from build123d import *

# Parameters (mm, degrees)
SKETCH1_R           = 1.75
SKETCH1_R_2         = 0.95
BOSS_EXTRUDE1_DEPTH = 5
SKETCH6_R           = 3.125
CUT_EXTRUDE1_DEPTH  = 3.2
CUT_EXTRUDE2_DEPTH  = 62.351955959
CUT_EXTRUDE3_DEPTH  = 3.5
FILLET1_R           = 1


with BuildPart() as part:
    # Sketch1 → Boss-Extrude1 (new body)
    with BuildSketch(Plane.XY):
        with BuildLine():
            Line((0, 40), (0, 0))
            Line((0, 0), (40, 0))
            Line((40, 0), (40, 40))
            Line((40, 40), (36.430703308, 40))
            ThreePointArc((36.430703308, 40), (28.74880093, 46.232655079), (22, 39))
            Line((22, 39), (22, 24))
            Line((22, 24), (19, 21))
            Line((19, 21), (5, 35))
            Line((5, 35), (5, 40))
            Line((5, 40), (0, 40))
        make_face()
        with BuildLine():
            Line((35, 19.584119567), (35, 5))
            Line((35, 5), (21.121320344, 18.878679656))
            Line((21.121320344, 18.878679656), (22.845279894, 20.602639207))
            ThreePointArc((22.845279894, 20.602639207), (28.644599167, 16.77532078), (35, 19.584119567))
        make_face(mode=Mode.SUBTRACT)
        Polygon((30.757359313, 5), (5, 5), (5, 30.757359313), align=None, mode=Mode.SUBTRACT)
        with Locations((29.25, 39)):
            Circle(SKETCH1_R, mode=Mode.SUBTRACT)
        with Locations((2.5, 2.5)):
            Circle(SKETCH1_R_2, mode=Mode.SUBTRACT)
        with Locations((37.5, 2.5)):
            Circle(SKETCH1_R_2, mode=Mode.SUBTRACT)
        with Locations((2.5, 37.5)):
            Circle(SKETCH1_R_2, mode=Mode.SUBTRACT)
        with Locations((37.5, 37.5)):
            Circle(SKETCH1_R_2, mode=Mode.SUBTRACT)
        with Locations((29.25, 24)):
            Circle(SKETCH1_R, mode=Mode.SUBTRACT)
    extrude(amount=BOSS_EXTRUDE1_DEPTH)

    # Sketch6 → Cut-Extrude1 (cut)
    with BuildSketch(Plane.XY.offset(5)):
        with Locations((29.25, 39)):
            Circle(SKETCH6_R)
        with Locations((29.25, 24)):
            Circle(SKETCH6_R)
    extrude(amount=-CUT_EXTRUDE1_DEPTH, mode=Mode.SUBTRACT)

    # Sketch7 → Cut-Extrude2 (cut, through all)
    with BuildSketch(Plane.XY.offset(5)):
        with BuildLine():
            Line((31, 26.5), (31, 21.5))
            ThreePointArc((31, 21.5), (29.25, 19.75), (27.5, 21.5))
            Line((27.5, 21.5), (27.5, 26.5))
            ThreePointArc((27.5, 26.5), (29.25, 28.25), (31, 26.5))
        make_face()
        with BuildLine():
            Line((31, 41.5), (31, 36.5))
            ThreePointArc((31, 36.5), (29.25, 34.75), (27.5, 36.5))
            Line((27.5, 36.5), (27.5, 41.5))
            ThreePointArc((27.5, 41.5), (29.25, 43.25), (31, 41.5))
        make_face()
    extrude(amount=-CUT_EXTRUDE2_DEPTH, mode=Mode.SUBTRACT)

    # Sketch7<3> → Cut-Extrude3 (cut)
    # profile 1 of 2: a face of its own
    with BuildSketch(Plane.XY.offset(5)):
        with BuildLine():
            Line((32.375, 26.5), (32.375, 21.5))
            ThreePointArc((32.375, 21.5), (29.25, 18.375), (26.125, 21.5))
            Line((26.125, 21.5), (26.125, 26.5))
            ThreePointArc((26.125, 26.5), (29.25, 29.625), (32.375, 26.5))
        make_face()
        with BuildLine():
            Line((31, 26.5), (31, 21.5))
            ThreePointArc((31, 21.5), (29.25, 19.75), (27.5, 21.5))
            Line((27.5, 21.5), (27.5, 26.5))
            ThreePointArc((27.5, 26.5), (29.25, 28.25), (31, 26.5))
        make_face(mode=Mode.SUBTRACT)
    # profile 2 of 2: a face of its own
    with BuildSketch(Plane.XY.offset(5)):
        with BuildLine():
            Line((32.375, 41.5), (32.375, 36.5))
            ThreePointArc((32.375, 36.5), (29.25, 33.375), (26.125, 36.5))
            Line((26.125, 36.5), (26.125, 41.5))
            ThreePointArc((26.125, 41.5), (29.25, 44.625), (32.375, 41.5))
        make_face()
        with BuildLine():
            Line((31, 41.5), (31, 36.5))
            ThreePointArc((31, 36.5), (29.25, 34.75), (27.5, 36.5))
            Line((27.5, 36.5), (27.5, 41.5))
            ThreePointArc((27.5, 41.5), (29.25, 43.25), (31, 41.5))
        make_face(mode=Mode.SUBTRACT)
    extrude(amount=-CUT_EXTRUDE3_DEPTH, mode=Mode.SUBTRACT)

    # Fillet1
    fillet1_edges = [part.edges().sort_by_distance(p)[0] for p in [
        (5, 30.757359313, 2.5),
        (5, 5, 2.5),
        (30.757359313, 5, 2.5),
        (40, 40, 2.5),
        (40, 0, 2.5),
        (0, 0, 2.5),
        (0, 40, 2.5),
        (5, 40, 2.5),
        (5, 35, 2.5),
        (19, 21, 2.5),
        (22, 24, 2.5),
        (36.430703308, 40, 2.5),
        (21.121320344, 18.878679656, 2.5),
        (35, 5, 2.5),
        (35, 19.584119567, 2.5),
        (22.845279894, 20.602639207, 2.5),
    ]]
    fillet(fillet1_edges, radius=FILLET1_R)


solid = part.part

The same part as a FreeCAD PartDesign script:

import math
import FreeCAD as App
import Part
import Sketcher
Q = App.Units.Quantity


def edges_at(feature, points):
    """Names of the edges that pass closest to the given points."""
    edges = feature.Shape.Edges
    near = lambda p: min(range(len(edges)), key=lambda i: edges[i].distToShape(Part.Vertex(*p))[0])
    return sorted({f"Edge{near(p) + 1}" for p in points})

doc = App.newDocument("Part")
params = doc.addObject("Spreadsheet::Sheet", "Params")
for row, (alias, value) in enumerate([
    ("sketch1_diameter", "1.9 mm"),
    ("sketch1_diameter2", "3.5 mm"),
    ("sketch1_width", "40 mm"),
    ("sketch1_width2", "5 mm"),
    ("sketch1_height", "15 mm"),
    ("pad1_length", "5 mm"),
    ("sketch2_diameter", "6.25 mm"),
    ("pocket1_length", "3.2 mm"),
    ("sketch3_height", "5 mm"),
    ("sketch3_radius", "1.75 mm"),
    ("sketch4_height", "5 mm"),
    ("sketch4_radius", "1.75 mm"),
    ("pocket3_length", "3.5 mm"),
    ("fillet_radius", "1 mm"),
], start=1):
    params.set(f"A{row}", alias)
    params.set(f"B{row}", "=" + value)
    params.setAlias(f"B{row}", alias)

body = doc.addObject("PartDesign::Body", "Body")

sketch1 = body.newObject("Sketcher::SketchObject", "Sketch")
sketch1.AttachmentSupport = (doc.getObject("XY_Plane"), [""])
sketch1.MapMode = "FlatFace"
sketch1.addGeometry([
    Part.LineSegment(App.Vector(0, 40, 0), App.Vector(0, 0, 0)),
    Part.LineSegment(App.Vector(0, 0, 0), App.Vector(40, 0, 0)),
    Part.LineSegment(App.Vector(40, 0, 0), App.Vector(40, 40, 0)),
    Part.LineSegment(App.Vector(40, 40, 0), App.Vector(36.4, 40, 0)),
    Part.ArcOfCircle(Part.Circle(App.Vector(29.2, 39, 0), App.Vector(0, 0, 1), 7.2), math.radians(8), math.radians(180)),
    Part.LineSegment(App.Vector(22, 39, 0), App.Vector(22, 24, 0)),
    Part.LineSegment(App.Vector(22, 24, 0), App.Vector(19, 21, 0)),
    Part.LineSegment(App.Vector(19, 21, 0), App.Vector(5, 35, 0)),
    Part.LineSegment(App.Vector(5, 35, 0), App.Vector(5, 40, 0)),
    Part.LineSegment(App.Vector(5, 40, 0), App.Vector(0, 40, 0)),
    Part.Circle(App.Vector(2.5, 2.5, 0), App.Vector(0, 0, 1), 0.9),
    Part.LineSegment(App.Vector(5, 30.8, 0), App.Vector(30.8, 5, 0)),
    Part.LineSegment(App.Vector(30.8, 5, 0), App.Vector(5, 5, 0)),
    Part.LineSegment(App.Vector(5, 5, 0), App.Vector(5, 30.8, 0)),
    Part.Circle(App.Vector(37.5, 2.5, 0), App.Vector(0, 0, 1), 0.9),
    Part.ArcOfCircle(Part.Circle(App.Vector(29.2, 24, 0), App.Vector(0, 0, 1), 7.2), math.radians(-152), math.radians(-38)),
    Part.LineSegment(App.Vector(35, 19.6, 0), App.Vector(35, 5, 0)),
    Part.LineSegment(App.Vector(35, 5, 0), App.Vector(21.1, 18.9, 0)),
    Part.LineSegment(App.Vector(21.1, 18.9, 0), App.Vector(22.8, 20.6, 0)),
    Part.Circle(App.Vector(2.5, 37.5, 0), App.Vector(0, 0, 1), 0.9),
    Part.Circle(App.Vector(29.2, 24, 0), App.Vector(0, 0, 1), 1.8),
    Part.Circle(App.Vector(29.2, 39, 0), App.Vector(0, 0, 1), 1.8),
    Part.Circle(App.Vector(37.5, 37.5, 0), App.Vector(0, 0, 1), 0.9),
], False)
sketch1.addConstraint([
    Sketcher.Constraint("Coincident", 0, 2, 1, 1),
    Sketcher.Constraint("Coincident", 1, 2, 2, 1),
    Sketcher.Constraint("Coincident", 2, 2, 3, 1),
    Sketcher.Constraint("Coincident", 3, 2, 4, 1),
    Sketcher.Constraint("Tangent", 4, 2, 5, 1),
    Sketcher.Constraint("Coincident", 5, 2, 6, 1),
    Sketcher.Constraint("Coincident", 6, 2, 7, 1),
    Sketcher.Constraint("Coincident", 7, 2, 8, 1),
    Sketcher.Constraint("Coincident", 8, 2, 9, 1),
    Sketcher.Constraint("Coincident", 9, 2, 0, 1),
    Sketcher.Constraint("Coincident", 11, 2, 12, 1),
    Sketcher.Constraint("Coincident", 12, 2, 13, 1),
    Sketcher.Constraint("Coincident", 13, 2, 11, 1),
    Sketcher.Constraint("Coincident", 15, 2, 16, 1),
    Sketcher.Constraint("Coincident", 16, 2, 17, 1),
    Sketcher.Constraint("Coincident", 17, 2, 18, 1),
    Sketcher.Constraint("Coincident", 18, 2, 15, 1),
    Sketcher.Constraint("Vertical", 0),
    Sketcher.Constraint("Horizontal", 1),
    Sketcher.Constraint("Vertical", 2),
    Sketcher.Constraint("Horizontal", 3),
    Sketcher.Constraint("Vertical", 5),
    Sketcher.Constraint("Vertical", 8),
    Sketcher.Constraint("Horizontal", 9),
    Sketcher.Constraint("Horizontal", 12),
    Sketcher.Constraint("Vertical", 13),
    Sketcher.Constraint("Vertical", 16),
    Sketcher.Constraint("Coincident", 0, 2, -1, 1),
    Sketcher.Constraint("Coincident", 20, 3, 15, 3),
    Sketcher.Constraint("Coincident", 21, 3, 4, 3),
    Sketcher.Constraint("Equal", 10, 14),
    Sketcher.Constraint("Equal", 4, 15),
    Sketcher.Constraint("Equal", 14, 19),
    Sketcher.Constraint("Equal", 20, 21),
    Sketcher.Constraint("Equal", 19, 22),
    Sketcher.Constraint("Perpendicular", 6, 7),
    Sketcher.Constraint("Parallel", 7, 11),
    Sketcher.Constraint("Parallel", 11, 17),
    Sketcher.Constraint("Perpendicular", 17, 18),
    Sketcher.Constraint("Horizontal", 10, 3, 14, 3),
    Sketcher.Constraint("Horizontal", 19, 3, 22, 3),
    Sketcher.Constraint("Horizontal", 20, 3, 5, 2),
    Sketcher.Constraint("Horizontal", 3, 2, 8, 2),
    Sketcher.Constraint("Horizontal", 12, 2, 16, 2),
    Sketcher.Constraint("Vertical", 4, 3, 15, 3),
    Sketcher.Constraint("Vertical", 10, 3, 19, 3),
    Sketcher.Constraint("Vertical", 14, 3, 22, 3),
    Sketcher.Constraint("Vertical", 8, 2, 12, 2),
    Sketcher.Constraint("Equal", 1, 0),
    Sketcher.Constraint("Equal", 9, 8),
    Sketcher.Constraint("Equal", 12, 13),
    Sketcher.Constraint("Diameter", 10, Q("1.9 mm")),
    Sketcher.Constraint("Diameter", 20, Q("3.5 mm")),
    Sketcher.Constraint("DistanceX", 1, 1, 1, 2, Q("40 mm")),
    Sketcher.Constraint("DistanceX", 9, 2, 9, 1, Q("5 mm")),
    Sketcher.Constraint("DistanceY", 5, 2, 5, 1, Q("15 mm")),
    Sketcher.Constraint("Radius", 4, Q("7.25 mm")),
    Sketcher.Constraint("DistanceY", -1, 1, 4, 3, Q("39 mm")),
    Sketcher.Constraint("DistanceX", -1, 1, 4, 2, Q("22 mm")),
    Sketcher.Constraint("DistanceY", -1, 1, 11, 2, Q("5 mm")),
    Sketcher.Constraint("DistanceX", -1, 1, 15, 2, Q("35 mm")),
    Sketcher.Constraint("DistanceX", 10, 3, 14, 3, Q("35 mm")),
    Sketcher.Constraint("DistanceY", 10, 3, 19, 3, Q("35 mm")),
    Sketcher.Constraint("DistanceX", -1, 1, 10, 3, Q("2.5 mm")),
    Sketcher.Constraint("DistanceY", -1, 1, 10, 3, Q("2.5 mm")),
    Sketcher.Constraint("DistanceX", 12, 2, 12, 1, Q("25.757359 mm")),
    Sketcher.Constraint("DistanceX", -1, 1, 17, 2, Q("21.12132 mm")),
])
sketch1.setExpression("Constraints[51]", "Params.sketch1_diameter")
sketch1.setExpression("Constraints[52]", "Params.sketch1_diameter2")
sketch1.setExpression("Constraints[53]", "Params.sketch1_width")
sketch1.setExpression("Constraints[54]", "Params.sketch1_width2")
sketch1.setExpression("Constraints[55]", "Params.sketch1_height")
pad1 = body.newObject("PartDesign::Pad", "Pad")
pad1.Profile = sketch1
pad1.setExpression("Length", "Params.pad1_length")

sketch2 = body.newObject("Sketcher::SketchObject", "Sketch001")
sketch2.AttachmentSupport = (doc.getObject("XY_Plane"), [""])
sketch2.MapMode = "FlatFace"
sketch2.AttachmentOffset = App.Placement(App.Vector(0, 0, 5), App.Rotation())
sketch2.addGeometry([
    Part.Circle(App.Vector(29.2, 39, 0), App.Vector(0, 0, 1), 3.1),
    Part.Circle(App.Vector(29.2, 24, 0), App.Vector(0, 0, 1), 3.1),
], False)
sketch2.addConstraint([
    Sketcher.Constraint("Equal", 0, 1),
    Sketcher.Constraint("Vertical", 0, 3, 1, 3),
    Sketcher.Constraint("Diameter", 0, Q("6.25 mm")),
    Sketcher.Constraint("DistanceY", -1, 1, 0, 3, Q("39 mm")),
    Sketcher.Constraint("DistanceY", -1, 1, 1, 3, Q("24 mm")),
    Sketcher.Constraint("DistanceX", -1, 1, 0, 3, Q("29.25 mm")),
])
sketch2.setExpression("Constraints[2]", "Params.sketch2_diameter")
pocket1 = body.newObject("PartDesign::Pocket", "Pocket")
pocket1.Profile = sketch2
pocket1.setExpression("Length", "Params.pocket1_length")

sketch3 = body.newObject("Sketcher::SketchObject", "Sketch002")
sketch3.AttachmentSupport = (doc.getObject("XY_Plane"), [""])
sketch3.MapMode = "FlatFace"
sketch3.AttachmentOffset = App.Placement(App.Vector(0, 0, 5), App.Rotation())
sketch3.addGeometry([
    Part.LineSegment(App.Vector(31, 21.5, 0), App.Vector(31, 26.5, 0)),
    Part.ArcOfCircle(Part.Circle(App.Vector(29.2, 26.5, 0), App.Vector(0, 0, 1), 1.8), math.radians(0), math.radians(180)),
    Part.LineSegment(App.Vector(27.5, 26.5, 0), App.Vector(27.5, 21.5, 0)),
    Part.ArcOfCircle(Part.Circle(App.Vector(29.2, 21.5, 0), App.Vector(0, 0, 1), 1.8), math.radians(180), math.radians(360)),
    Part.LineSegment(App.Vector(31, 36.5, 0), App.Vector(31, 41.5, 0)),
    Part.ArcOfCircle(Part.Circle(App.Vector(29.2, 41.5, 0), App.Vector(0, 0, 1), 1.8), math.radians(0), math.radians(180)),
    Part.LineSegment(App.Vector(27.5, 41.5, 0), App.Vector(27.5, 36.5, 0)),
    Part.ArcOfCircle(Part.Circle(App.Vector(29.2, 36.5, 0), App.Vector(0, 0, 1), 1.8), math.radians(180), math.radians(360)),
], False)
sketch3.addConstraint([
    Sketcher.Constraint("Tangent", 0, 2, 1, 1),
    Sketcher.Constraint("Tangent", 1, 2, 2, 1),
    Sketcher.Constraint("Tangent", 2, 2, 3, 1),
    Sketcher.Constraint("Tangent", 3, 2, 0, 1),
    Sketcher.Constraint("Tangent", 4, 2, 5, 1),
    Sketcher.Constraint("Tangent", 5, 2, 6, 1),
    Sketcher.Constraint("Tangent", 6, 2, 7, 1),
    Sketcher.Constraint("Tangent", 7, 2, 4, 1),
    Sketcher.Constraint("Vertical", 0),
    Sketcher.Constraint("Vertical", 2),
    Sketcher.Constraint("Vertical", 4),
    Sketcher.Constraint("Vertical", 6),
    Sketcher.Constraint("Equal", 3, 5),
    Sketcher.Constraint("Vertical", 3, 3, 5, 3),
    Sketcher.Constraint("Equal", 2, 4),
    Sketcher.Constraint("DistanceY", 0, 1, 0, 2, Q("5 mm")),
    Sketcher.Constraint("Radius", 1, Q("1.75 mm")),
    Sketcher.Constraint("DistanceX", -1, 1, 0, 2, Q("31 mm")),
    Sketcher.Constraint("DistanceY", 1, 3, 5, 3, Q("15 mm")),
    Sketcher.Constraint("DistanceY", -1, 1, 1, 3, Q("26.5 mm")),
])
sketch3.setExpression("Constraints[15]", "Params.sketch3_height")
sketch3.setExpression("Constraints[16]", "Params.sketch3_radius")
pocket2 = body.newObject("PartDesign::Pocket", "Pocket001")
pocket2.Profile = sketch3
pocket2.Type = "ThroughAll"

sketch4 = body.newObject("Sketcher::SketchObject", "Sketch003")
sketch4.AttachmentSupport = (doc.getObject("XY_Plane"), [""])
sketch4.MapMode = "FlatFace"
sketch4.AttachmentOffset = App.Placement(App.Vector(0, 0, 5), App.Rotation())
sketch4.addGeometry([
    Part.LineSegment(App.Vector(32.4, 21.5, 0), App.Vector(32.4, 26.5, 0)),
    Part.ArcOfCircle(Part.Circle(App.Vector(29.2, 26.5, 0), App.Vector(0, 0, 1), 3.1), math.radians(0), math.radians(180)),
    Part.LineSegment(App.Vector(26.1, 26.5, 0), App.Vector(26.1, 21.5, 0)),
    Part.ArcOfCircle(Part.Circle(App.Vector(29.2, 21.5, 0), App.Vector(0, 0, 1), 3.1), math.radians(180), math.radians(360)),
    Part.LineSegment(App.Vector(31, 26.5, 0), App.Vector(31, 21.5, 0)),
    Part.ArcOfCircle(Part.Circle(App.Vector(29.2, 21.5, 0), App.Vector(0, 0, 1), 1.8), math.radians(180), math.radians(360)),
    Part.LineSegment(App.Vector(27.5, 21.5, 0), App.Vector(27.5, 26.5, 0)),
    Part.ArcOfCircle(Part.Circle(App.Vector(29.2, 26.5, 0), App.Vector(0, 0, 1), 1.8), math.radians(0), math.radians(180)),
    Part.LineSegment(App.Vector(32.4, 36.5, 0), App.Vector(32.4, 41.5, 0)),
    Part.ArcOfCircle(Part.Circle(App.Vector(29.2, 41.5, 0), App.Vector(0, 0, 1), 3.1), math.radians(0), math.radians(180)),
    Part.LineSegment(App.Vector(26.1, 41.5, 0), App.Vector(26.1, 36.5, 0)),
    Part.ArcOfCircle(Part.Circle(App.Vector(29.2, 36.5, 0), App.Vector(0, 0, 1), 3.1), math.radians(180), math.radians(360)),
    Part.LineSegment(App.Vector(31, 41.5, 0), App.Vector(31, 36.5, 0)),
    Part.ArcOfCircle(Part.Circle(App.Vector(29.2, 36.5, 0), App.Vector(0, 0, 1), 1.8), math.radians(180), math.radians(360)),
    Part.LineSegment(App.Vector(27.5, 36.5, 0), App.Vector(27.5, 41.5, 0)),
    Part.ArcOfCircle(Part.Circle(App.Vector(29.2, 41.5, 0), App.Vector(0, 0, 1), 1.8), math.radians(0), math.radians(180)),
], False)
sketch4.addConstraint([
    Sketcher.Constraint("Tangent", 0, 2, 1, 1),
    Sketcher.Constraint("Tangent", 1, 2, 2, 1),
    Sketcher.Constraint("Tangent", 2, 2, 3, 1),
    Sketcher.Constraint("Tangent", 3, 2, 0, 1),
    Sketcher.Constraint("Tangent", 4, 2, 5, 2),
    Sketcher.Constraint("Tangent", 5, 1, 6, 1),
    Sketcher.Constraint("Tangent", 6, 2, 7, 2),
    Sketcher.Constraint("Tangent", 7, 1, 4, 1),
    Sketcher.Constraint("Tangent", 8, 2, 9, 1),
    Sketcher.Constraint("Tangent", 9, 2, 10, 1),
    Sketcher.Constraint("Tangent", 10, 2, 11, 1),
    Sketcher.Constraint("Tangent", 11, 2, 8, 1),
    Sketcher.Constraint("Tangent", 12, 2, 13, 2),
    Sketcher.Constraint("Tangent", 13, 1, 14, 1),
    Sketcher.Constraint("Tangent", 14, 2, 15, 2),
    Sketcher.Constraint("Tangent", 15, 1, 12, 1),
    Sketcher.Constraint("Vertical", 0),
    Sketcher.Constraint("Vertical", 2),
    Sketcher.Constraint("Vertical", 4),
    Sketcher.Constraint("Vertical", 6),
    Sketcher.Constraint("Vertical", 8),
    Sketcher.Constraint("Vertical", 10),
    Sketcher.Constraint("Vertical", 12),
    Sketcher.Constraint("Vertical", 14),
    Sketcher.Constraint("Coincident", 5, 3, 3, 3),
    Sketcher.Constraint("Coincident", 13, 3, 11, 3),
    Sketcher.Constraint("Equal", 3, 9),
    Sketcher.Constraint("Equal", 7, 13),
    Sketcher.Constraint("Horizontal", 7, 3, 0, 2),
    Sketcher.Constraint("Horizontal", 15, 3, 8, 2),
    Sketcher.Constraint("Vertical", 7, 3, 9, 3),
    Sketcher.Constraint("Equal", 6, 8),
    Sketcher.Constraint("DistanceY", 0, 1, 0, 2, Q("5 mm")),
    Sketcher.Constraint("Radius", 5, Q("1.75 mm")),
    Sketcher.Constraint("DistanceX", -1, 1, 4, 2, Q("31 mm")),
    Sketcher.Constraint("Radius", 1, Q("3.125 mm")),
    Sketcher.Constraint("DistanceY", 1, 3, 9, 3, Q("15 mm")),
    Sketcher.Constraint("DistanceY", -1, 1, 1, 3, Q("26.5 mm")),
])
sketch4.setExpression("Constraints[32]", "Params.sketch4_height")
sketch4.setExpression("Constraints[33]", "Params.sketch4_radius")
pocket3 = body.newObject("PartDesign::Pocket", "Pocket002")
pocket3.Profile = sketch4
pocket3.setExpression("Length", "Params.pocket3_length")
doc.recompute()

fillet = body.newObject("PartDesign::Fillet", "Fillet")
fillet.Base = (pocket3, edges_at(pocket3, [
    (5, 30.757, 2.5),
    (5, 5, 2.5),
    (30.757, 5, 2.5),
    (40, 40, 2.5),
    (40, 0, 2.5),
    (0, 0, 2.5),
    (0, 40, 2.5),
    (5, 40, 2.5),
    (5, 35, 2.5),
    (19, 21, 2.5),
    (22, 24, 2.5),
    (36.431, 40, 2.5),
    (21.121, 18.879, 2.5),
    (35, 5, 2.5),
    (35, 19.584, 2.5),
    (22.845, 20.603, 2.5),
]))
fillet.setExpression("Radius", "Params.fillet_radius")

doc.recompute()
